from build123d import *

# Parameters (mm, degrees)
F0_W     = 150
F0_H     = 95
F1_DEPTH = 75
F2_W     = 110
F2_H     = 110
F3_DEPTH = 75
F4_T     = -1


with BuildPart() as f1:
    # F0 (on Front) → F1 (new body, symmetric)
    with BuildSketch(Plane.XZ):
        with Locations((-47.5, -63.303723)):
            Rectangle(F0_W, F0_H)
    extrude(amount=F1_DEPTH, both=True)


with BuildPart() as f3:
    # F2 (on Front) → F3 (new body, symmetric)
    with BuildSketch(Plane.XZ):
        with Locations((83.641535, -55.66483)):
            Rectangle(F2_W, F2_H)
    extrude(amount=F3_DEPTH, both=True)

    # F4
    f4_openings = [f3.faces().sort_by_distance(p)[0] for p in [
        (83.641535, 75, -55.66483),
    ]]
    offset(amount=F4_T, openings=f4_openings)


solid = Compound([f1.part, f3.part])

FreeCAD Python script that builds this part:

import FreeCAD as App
import Part
import Sketcher
Q = App.Units.Quantity


def faces_at(feature, points):
    """Names of the faces that lie closest to the given points."""
    faces = feature.Shape.Faces
    near = lambda p: min(range(len(faces)), key=lambda i: faces[i].distToShape(Part.Vertex(*p))[0])
    return sorted({f"Face{near(p) + 1}" for p in points})


def add_polygon(sketch, points):
    """Adds a closed chain of lines whose ends are joined by coincident constraints."""
    first, n = sketch.GeometryCount, len(points)
    for a, b in zip(points, points[1:] + points[:1]):
        sketch.addGeometry(Part.LineSegment(App.Vector(*a, 0), App.Vector(*b, 0)), False)
    for i in range(n):
        sketch.addConstraint(Sketcher.Constraint("Coincident", first + i, 2, first + (i + 1) % n, 1))

doc = App.newDocument("Part")
body = doc.addObject("PartDesign::Body", "Body")

# Sketch on XZ plane
sketch1 = doc.addObject("Sketcher::SketchObject", "Sketch")
body.addObject(sketch1)
sketch1.AttachmentSupport = (doc.XZ_Plane, [""])
sketch1.MapMode = "FlatFace"
add_polygon(sketch1, [(-122, -16), (-122, -111), (28, -111), (28, -16)])  # lines 0-3
sketch1.addConstraint(Sketcher.Constraint("Vertical", 0))
sketch1.addConstraint(Sketcher.Constraint("Horizontal", 1))
sketch1.addConstraint(Sketcher.Constraint("Vertical", 2))
sketch1.addConstraint(Sketcher.Constraint("Horizontal", 3))
sketch1.addConstraint(Sketcher.Constraint("DistanceX", 1, 1, 1, 2, Q("150 mm")))
sketch1.addConstraint(Sketcher.Constraint("DistanceY", 0, 2, 0, 1, Q("95 mm")))
sketch1.addConstraint(Sketcher.Constraint("DistanceX", 0, 2, -1, 1, Q("122.5 mm")))
sketch1.addConstraint(Sketcher.Constraint("DistanceY", 0, 2, -1, 1, Q("110.803723 mm")))
pad1 = doc.addObject("PartDesign::Pad", "Pad")
body.addObject(pad1)
pad1.Profile = sketch1
pad1.Length = 150
pad1.Midplane = True
body2 = doc.addObject("PartDesign::Body", "Body001")

# Sketch on XZ plane
sketch2 = doc.addObject("Sketcher::SketchObject", "Sketch001")
body2.addObject(sketch2)
sketch2.AttachmentSupport = (doc.getObject("XZ_Plane001"), [""])
sketch2.MapMode = "FlatFace"
add_polygon(sketch2, [(29, -1), (29, -111), (139, -111), (139, -1)])  # lines 0-3
sketch2.addConstraint(Sketcher.Constraint("Vertical", 0))
sketch2.addConstraint(Sketcher.Constraint("Horizontal", 1))
sketch2.addConstraint(Sketcher.Constraint("Vertical", 2))
sketch2.addConstraint(Sketcher.Constraint("Horizontal", 3))
sketch2.addConstraint(Sketcher.Constraint("Equal", 3, 0))
sketch2.addConstraint(Sketcher.Constraint("DistanceX", 1, 1, 1, 2, Q("110 mm")))
sketch2.addConstraint(Sketcher.Constraint("DistanceY", 0, 2, -1, 1, Q("110.66483 mm")))
sketch2.addConstraint(Sketcher.Constraint("DistanceX", -1, 1, 0, 2, Q("28.641535 mm")))
pad2 = doc.addObject("PartDesign::Pad", "Pad001")
body2.addObject(pad2)
pad2.Profile = sketch2
pad2.Length = 150
pad2.Midplane = True
doc.recompute()

thickness = doc.addObject("PartDesign::Thickness", "Thickness")
body2.addObject(thickness)
thickness.Base = (pad2, faces_at(pad2, [(83.642, 75, -55.665)]))
thickness.Value = 1
thickness.Reversed = True
thickness.Join = "Arc"

doc.recompute()
